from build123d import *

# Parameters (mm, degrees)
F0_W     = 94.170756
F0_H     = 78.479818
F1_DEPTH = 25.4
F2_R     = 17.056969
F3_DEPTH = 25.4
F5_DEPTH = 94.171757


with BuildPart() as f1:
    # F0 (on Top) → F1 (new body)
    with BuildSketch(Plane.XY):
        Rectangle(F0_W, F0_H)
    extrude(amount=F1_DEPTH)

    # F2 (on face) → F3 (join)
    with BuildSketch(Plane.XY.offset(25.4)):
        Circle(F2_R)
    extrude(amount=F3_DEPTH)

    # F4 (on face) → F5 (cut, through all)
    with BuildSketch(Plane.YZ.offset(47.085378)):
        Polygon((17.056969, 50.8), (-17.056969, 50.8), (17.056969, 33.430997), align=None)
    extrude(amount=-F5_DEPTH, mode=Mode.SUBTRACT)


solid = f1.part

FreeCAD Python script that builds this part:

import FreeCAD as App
import Part
import Sketcher
from FreeCAD import Vector
Q = App.Units.Quantity

doc = App.newDocument("Part")
body = doc.addObject("PartDesign::Body", "Body")

# Sketch on XY plane
sketch1 = doc.addObject("Sketcher::SketchObject", "Sketch")
body.addObject(sketch1)
sketch1.AttachmentSupport = (doc.XY_Plane, [""])
sketch1.MapMode = "FlatFace"
sketch1.addGeometry([
    Part.LineSegment(Vector(-47, 39, 0), Vector(-47, -39, 0)),
    Part.LineSegment(Vector(-47, -39, 0), Vector(47, -39, 0)),
    Part.LineSegment(Vector(47, -39, 0), Vector(47, 39, 0)),
    Part.LineSegment(Vector(47, 39, 0), Vector(-47, 39, 0)),
], False)
sketch1.addConstraint([
    Sketcher.Constraint("Coincident", 0, 2, 1, 1),
    Sketcher.Constraint("Coincident", 1, 2, 2, 1),
    Sketcher.Constraint("Coincident", 2, 2, 3, 1),
    Sketcher.Constraint("Coincident", 3, 2, 0, 1),
    Sketcher.Constraint("Vertical", 0),
    Sketcher.Constraint("Horizontal", 1),
    Sketcher.Constraint("Vertical", 2),
    Sketcher.Constraint("Horizontal", 3),
    Sketcher.Constraint("Symmetric", 0, 2, 2, 2, -1, 1),
    Sketcher.Constraint("DistanceX", 1, 1, 1, 2, Q("94.170756 mm")),
    Sketcher.Constraint("DistanceY", 0, 2, 0, 1, Q("78.479818 mm")),
])
pad1 = doc.addObject("PartDesign::Pad", "Pad")
body.addObject(pad1)
pad1.Profile = sketch1
pad1.Length = Q("1 in")

# Sketch on XY plane
sketch2 = doc.addObject("Sketcher::SketchObject", "Sketch001")
body.addObject(sketch2)
sketch2.AttachmentSupport = (doc.XY_Plane, [""])
sketch2.MapMode = "FlatFace"
sketch2.AttachmentOffset = App.Placement(Vector(0, 0, 1 * 25.4), App.Rotation())
sketch2.addGeometry(Part.Circle(Vector(0, 0, 0), Vector(0, 0, 1), 17), False)
sketch2.addConstraint([
    Sketcher.Constraint("Coincident", 0, 3, -1, 1),
    Sketcher.Constraint("Diameter", 0, Q("34.113938 mm")),
])
pad2 = doc.addObject("PartDesign::Pad", "Pad001")
body.addObject(pad2)
pad2.Profile = sketch2
pad2.Length = Q("1 in")

# Sketch on YZ plane
sketch3 = doc.addObject("Sketcher::SketchObject", "Sketch002")
body.addObject(sketch3)
sketch3.AttachmentSupport = (doc.YZ_Plane, [""])
sketch3.MapMode = "FlatFace"
sketch3.AttachmentOffset = App.Placement(Vector(0, 0, 47.085378), App.Rotation())
sketch3.addGeometry([
    Part.LineSegment(Vector(17, 51, 0), Vector(-17, 51, 0)),
    Part.LineSegment(Vector(-17, 51, 0), Vector(17, 33, 0)),
    Part.LineSegment(Vector(17, 33, 0), Vector(17, 51, 0)),
], False)
sketch3.addConstraint([
    Sketcher.Constraint("Coincident", 0, 2, 1, 1),
    Sketcher.Constraint("Coincident", 1, 2, 2, 1),
    Sketcher.Constraint("Coincident", 2, 2, 0, 1),
    Sketcher.Constraint("Horizontal", 0),
    Sketcher.Constraint("Vertical", 2),
    Sketcher.Constraint("DistanceY", -1, 1, 0, 2, Q("2 in")),
    Sketcher.Constraint("DistanceX", 0, 2, 0, 1, Q("34.113938 mm")),
    Sketcher.Constraint("DistanceY", 2, 1, 2, 2, Q("17.369003 mm")),
    Sketcher.Constraint("DistanceX", 0, 2, -1, 1, Q("17.056969 mm")),
])
pocket1 = doc.addObject("PartDesign::Pocket", "Pocket")
body.addObject(pocket1)
pocket1.Profile = sketch3
pocket1.Type = "ThroughAll"

doc.recompute()
